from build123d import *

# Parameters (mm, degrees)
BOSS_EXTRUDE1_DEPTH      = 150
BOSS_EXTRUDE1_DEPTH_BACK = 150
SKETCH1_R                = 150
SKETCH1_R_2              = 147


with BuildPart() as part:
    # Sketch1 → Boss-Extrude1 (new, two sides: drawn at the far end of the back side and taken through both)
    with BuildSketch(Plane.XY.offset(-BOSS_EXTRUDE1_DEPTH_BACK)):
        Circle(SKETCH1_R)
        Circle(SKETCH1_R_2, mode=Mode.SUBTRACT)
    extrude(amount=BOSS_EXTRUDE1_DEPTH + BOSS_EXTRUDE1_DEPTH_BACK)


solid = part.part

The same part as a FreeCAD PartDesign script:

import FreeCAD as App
import Part
import Sketcher
Q = App.Units.Quantity

doc = App.newDocument("Part")
body = doc.addObject("PartDesign::Body", "Body")

sketch1 = body.newObject("Sketcher::SketchObject", "Sketch")
sketch1.AttachmentSupport = (doc.getObject("XY_Plane"), [""])
sketch1.MapMode = "FlatFace"
sketch1.addGeometry([
    Part.Circle(App.Vector(0, 0, 0), App.Vector(0, 0, 1), 150),
    Part.Circle(App.Vector(0, 0, 0), App.Vector(0, 0, 1), 147),
], False)
sketch1.addConstraint([
    Sketcher.Constraint("Coincident", 0, 3, -1, 1),
    Sketcher.Constraint("Coincident", 1, 3, -1, 1),
    Sketcher.Constraint("Diameter", 0, Q("300 mm")),
    Sketcher.Constraint("Diameter", 1, Q("294 mm")),
])
pad1 = body.newObject("PartDesign::Pad", "Pad")
pad1.Profile = sketch1
pad1.Type = "TwoLengths"
pad1.Length = 150
pad1.Length2 = 150

doc.recompute()
